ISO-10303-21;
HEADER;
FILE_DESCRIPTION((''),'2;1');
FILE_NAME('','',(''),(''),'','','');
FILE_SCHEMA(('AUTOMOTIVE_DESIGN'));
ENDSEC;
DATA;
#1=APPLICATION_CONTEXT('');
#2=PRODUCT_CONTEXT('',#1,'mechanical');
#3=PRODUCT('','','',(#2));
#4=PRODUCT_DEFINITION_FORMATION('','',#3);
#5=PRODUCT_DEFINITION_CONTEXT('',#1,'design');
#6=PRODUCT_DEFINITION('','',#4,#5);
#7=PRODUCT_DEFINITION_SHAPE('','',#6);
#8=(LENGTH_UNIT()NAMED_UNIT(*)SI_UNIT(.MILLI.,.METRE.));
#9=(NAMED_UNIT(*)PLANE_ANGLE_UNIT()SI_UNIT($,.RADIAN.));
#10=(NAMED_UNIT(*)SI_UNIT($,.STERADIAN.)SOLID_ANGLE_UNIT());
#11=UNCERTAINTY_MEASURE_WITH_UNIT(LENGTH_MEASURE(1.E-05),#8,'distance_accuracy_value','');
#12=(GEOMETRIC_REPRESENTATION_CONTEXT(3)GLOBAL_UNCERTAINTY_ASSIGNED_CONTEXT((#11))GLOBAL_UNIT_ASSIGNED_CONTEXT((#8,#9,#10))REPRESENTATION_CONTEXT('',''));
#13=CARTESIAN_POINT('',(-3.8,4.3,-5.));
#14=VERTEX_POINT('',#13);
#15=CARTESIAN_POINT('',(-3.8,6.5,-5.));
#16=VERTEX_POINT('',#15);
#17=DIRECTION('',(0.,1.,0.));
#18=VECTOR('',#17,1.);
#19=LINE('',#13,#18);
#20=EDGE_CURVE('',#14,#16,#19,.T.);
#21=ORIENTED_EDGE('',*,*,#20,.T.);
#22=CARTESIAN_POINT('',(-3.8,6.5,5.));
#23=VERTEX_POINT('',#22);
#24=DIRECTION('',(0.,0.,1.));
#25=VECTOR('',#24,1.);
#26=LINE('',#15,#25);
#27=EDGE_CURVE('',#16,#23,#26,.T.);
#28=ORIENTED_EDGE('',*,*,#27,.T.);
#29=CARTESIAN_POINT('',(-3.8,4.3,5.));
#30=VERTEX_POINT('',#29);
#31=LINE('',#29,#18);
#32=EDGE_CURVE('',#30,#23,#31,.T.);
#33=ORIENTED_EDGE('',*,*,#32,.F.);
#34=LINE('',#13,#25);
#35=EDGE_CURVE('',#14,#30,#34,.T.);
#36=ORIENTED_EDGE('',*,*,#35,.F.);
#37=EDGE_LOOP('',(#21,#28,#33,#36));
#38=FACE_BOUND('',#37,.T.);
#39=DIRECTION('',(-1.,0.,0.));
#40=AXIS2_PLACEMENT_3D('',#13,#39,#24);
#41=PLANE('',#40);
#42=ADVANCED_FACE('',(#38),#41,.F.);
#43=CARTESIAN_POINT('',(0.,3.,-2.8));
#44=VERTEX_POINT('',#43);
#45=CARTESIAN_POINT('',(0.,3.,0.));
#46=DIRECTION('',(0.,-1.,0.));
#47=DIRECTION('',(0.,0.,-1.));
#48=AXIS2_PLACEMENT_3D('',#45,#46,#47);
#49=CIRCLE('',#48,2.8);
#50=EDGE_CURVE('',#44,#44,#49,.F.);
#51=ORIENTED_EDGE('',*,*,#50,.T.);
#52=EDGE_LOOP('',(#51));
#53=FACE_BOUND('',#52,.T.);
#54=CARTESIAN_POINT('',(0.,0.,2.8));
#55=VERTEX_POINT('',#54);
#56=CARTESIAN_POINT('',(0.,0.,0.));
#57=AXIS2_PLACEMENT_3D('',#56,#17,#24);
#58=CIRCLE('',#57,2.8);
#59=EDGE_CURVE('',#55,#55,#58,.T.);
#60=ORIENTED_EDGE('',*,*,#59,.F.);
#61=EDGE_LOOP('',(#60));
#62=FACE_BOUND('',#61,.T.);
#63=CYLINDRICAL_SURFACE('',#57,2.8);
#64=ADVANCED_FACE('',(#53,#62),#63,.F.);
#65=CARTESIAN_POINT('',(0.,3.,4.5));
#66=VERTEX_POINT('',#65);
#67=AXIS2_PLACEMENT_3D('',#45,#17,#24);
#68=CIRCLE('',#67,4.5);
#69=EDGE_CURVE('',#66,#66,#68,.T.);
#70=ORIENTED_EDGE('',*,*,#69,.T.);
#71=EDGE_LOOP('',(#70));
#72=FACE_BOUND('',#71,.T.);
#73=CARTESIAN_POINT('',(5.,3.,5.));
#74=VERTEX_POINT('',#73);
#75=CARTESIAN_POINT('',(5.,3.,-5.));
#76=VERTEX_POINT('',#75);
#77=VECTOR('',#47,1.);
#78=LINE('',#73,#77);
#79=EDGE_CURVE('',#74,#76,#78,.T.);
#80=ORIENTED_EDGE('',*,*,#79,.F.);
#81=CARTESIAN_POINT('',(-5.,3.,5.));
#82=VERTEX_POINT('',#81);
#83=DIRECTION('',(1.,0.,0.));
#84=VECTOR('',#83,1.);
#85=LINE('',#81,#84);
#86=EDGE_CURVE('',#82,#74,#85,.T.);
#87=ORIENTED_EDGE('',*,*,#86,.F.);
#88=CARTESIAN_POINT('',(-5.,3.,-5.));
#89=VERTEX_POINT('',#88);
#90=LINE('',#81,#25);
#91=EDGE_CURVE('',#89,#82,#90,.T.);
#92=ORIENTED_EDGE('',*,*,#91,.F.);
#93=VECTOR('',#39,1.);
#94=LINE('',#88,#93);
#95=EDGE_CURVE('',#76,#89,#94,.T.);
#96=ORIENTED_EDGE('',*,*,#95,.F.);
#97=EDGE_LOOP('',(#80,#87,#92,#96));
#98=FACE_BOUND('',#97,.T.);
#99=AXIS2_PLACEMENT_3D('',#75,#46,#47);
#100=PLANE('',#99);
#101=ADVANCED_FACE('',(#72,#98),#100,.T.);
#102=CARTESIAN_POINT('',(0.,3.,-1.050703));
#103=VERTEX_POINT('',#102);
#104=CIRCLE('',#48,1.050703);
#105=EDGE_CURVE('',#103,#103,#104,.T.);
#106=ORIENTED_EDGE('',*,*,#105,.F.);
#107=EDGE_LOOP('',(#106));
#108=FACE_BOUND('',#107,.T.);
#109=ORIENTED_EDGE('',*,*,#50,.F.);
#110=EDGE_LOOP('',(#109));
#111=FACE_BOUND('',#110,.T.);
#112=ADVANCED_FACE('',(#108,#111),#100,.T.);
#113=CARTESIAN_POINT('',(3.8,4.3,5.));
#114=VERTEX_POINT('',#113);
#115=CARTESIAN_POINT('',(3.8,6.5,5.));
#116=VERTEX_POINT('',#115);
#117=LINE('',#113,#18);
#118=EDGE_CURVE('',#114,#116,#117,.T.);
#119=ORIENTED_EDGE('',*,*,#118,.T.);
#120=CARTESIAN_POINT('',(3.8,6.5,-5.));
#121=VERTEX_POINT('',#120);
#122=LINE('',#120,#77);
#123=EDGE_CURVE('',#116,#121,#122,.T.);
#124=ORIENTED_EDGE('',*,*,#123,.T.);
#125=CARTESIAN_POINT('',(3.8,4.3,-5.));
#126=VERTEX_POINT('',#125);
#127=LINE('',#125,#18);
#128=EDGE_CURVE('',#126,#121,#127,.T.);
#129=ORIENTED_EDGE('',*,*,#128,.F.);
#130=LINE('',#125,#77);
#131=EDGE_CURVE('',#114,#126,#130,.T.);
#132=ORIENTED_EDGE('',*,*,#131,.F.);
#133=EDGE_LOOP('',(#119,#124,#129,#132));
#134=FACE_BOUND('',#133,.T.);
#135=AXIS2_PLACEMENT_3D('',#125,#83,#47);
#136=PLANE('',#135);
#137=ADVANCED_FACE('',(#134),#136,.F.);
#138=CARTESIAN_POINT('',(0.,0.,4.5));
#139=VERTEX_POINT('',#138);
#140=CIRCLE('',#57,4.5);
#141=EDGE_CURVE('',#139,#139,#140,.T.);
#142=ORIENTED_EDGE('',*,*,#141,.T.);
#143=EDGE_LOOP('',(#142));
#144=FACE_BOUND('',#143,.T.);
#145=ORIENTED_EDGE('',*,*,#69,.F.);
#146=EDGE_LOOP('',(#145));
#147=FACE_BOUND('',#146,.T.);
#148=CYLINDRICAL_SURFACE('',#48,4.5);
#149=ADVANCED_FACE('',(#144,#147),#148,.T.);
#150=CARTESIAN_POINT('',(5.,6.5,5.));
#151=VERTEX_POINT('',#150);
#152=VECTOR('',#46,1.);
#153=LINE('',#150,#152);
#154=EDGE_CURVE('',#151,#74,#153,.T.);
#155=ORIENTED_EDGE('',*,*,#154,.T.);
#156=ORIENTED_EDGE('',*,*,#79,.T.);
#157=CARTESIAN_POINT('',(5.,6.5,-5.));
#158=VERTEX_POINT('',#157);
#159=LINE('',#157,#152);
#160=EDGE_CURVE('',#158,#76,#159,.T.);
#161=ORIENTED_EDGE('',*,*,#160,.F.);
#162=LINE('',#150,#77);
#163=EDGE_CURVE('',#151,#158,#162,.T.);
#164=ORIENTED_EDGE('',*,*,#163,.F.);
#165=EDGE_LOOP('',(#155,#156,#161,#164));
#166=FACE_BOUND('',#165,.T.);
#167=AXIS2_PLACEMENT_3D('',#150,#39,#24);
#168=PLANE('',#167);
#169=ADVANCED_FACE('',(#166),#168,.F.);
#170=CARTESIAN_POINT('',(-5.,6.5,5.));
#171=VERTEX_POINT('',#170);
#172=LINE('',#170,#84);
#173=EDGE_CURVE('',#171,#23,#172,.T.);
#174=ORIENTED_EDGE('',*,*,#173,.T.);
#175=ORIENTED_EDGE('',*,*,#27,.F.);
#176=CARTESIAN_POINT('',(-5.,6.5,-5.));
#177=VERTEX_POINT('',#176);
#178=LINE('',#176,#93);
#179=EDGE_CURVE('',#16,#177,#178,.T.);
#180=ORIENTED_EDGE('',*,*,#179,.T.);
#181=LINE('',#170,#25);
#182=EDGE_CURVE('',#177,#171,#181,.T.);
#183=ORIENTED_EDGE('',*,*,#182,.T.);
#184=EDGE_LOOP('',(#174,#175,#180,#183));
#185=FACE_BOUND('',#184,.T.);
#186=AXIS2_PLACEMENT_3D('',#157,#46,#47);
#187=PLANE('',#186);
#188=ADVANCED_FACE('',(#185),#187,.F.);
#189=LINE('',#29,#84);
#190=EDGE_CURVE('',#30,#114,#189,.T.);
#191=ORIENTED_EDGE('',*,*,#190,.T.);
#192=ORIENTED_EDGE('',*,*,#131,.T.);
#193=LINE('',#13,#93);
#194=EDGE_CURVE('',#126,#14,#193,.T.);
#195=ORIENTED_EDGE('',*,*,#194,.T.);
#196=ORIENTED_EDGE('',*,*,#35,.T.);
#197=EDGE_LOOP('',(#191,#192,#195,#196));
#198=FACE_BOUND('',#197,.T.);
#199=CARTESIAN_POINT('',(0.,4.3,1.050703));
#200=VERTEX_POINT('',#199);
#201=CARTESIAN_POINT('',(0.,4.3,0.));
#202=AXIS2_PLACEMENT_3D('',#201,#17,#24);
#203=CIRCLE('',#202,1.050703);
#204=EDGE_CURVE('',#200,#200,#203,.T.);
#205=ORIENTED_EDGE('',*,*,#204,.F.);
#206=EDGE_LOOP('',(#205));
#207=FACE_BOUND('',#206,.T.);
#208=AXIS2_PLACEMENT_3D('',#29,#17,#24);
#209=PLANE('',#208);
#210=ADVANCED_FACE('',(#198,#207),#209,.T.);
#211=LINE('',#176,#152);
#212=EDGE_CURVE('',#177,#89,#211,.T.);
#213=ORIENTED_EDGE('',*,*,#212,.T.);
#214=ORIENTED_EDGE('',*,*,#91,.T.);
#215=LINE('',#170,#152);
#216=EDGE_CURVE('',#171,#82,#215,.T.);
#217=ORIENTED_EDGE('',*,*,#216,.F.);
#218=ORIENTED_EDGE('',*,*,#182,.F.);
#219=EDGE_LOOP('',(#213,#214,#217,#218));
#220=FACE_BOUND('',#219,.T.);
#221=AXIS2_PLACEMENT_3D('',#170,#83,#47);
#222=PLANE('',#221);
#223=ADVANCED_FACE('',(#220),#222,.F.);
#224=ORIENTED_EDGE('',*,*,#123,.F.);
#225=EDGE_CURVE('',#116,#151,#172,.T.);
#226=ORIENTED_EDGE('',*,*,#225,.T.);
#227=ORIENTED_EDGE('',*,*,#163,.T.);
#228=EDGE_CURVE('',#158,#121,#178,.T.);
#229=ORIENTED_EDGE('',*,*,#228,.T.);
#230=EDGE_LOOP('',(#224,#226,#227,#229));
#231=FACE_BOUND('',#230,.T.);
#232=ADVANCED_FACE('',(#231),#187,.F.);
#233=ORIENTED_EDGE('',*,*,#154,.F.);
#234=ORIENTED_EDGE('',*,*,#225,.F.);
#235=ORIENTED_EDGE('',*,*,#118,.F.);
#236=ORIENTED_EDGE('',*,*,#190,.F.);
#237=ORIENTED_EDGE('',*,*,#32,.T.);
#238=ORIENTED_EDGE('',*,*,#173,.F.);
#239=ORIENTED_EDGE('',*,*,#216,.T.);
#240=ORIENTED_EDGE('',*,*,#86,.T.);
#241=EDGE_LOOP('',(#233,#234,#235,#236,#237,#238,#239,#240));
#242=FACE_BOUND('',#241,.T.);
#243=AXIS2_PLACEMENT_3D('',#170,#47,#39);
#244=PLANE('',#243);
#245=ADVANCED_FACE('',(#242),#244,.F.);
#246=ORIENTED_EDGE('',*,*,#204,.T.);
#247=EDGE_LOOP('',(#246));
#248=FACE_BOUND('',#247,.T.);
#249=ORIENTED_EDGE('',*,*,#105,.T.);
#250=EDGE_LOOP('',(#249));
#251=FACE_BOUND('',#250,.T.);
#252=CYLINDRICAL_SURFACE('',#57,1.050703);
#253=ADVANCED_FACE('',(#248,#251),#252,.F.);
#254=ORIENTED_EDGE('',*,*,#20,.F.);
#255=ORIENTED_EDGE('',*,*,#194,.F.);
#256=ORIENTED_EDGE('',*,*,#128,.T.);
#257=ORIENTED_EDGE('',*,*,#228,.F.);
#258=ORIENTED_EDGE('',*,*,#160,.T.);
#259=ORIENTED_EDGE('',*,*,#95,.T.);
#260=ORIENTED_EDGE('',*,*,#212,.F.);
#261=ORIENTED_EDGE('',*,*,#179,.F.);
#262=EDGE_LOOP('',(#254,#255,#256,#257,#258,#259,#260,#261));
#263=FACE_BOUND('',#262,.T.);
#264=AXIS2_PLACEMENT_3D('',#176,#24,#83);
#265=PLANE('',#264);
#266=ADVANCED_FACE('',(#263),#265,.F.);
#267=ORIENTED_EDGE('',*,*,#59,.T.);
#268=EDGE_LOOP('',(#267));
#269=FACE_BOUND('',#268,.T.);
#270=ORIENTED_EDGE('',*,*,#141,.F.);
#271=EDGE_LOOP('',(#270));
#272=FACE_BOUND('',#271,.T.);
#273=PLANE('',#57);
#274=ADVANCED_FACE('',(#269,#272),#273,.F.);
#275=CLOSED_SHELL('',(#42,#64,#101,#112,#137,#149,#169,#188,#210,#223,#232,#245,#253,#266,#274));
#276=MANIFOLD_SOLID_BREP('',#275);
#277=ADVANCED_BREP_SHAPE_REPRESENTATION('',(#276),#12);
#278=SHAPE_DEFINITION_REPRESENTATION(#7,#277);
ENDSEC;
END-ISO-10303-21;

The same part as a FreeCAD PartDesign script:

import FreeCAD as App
import Part
import Sketcher

V = App.Vector


def add_polygon(sketch, points):
    """Adds a closed chain of lines whose ends are joined by coincident constraints."""
    first, n = sketch.GeometryCount, len(points)
    for a, b in zip(points, points[1:] + points[:1]):
        sketch.addGeometry(Part.LineSegment(App.Vector(*a, 0), App.Vector(*b, 0)), False)
    for i in range(n):
        sketch.addConstraint(Sketcher.Constraint("Coincident", first + i, 2, first + (i + 1) % n, 1))

doc = App.newDocument("Part")
body = doc.addObject("PartDesign::Body", "Body")

# Sketch on XZ plane
sketch1 = doc.addObject("Sketcher::SketchObject", "Sketch")
body.addObject(sketch1)
sketch1.AttachmentSupport = (doc.XZ_Plane, [""])
sketch1.MapMode = "FlatFace"
sketch1.addGeometry(Part.Circle(V(0, 0, 0), V(0, 0, 1), 4.5), False)
sketch1.addConstraint([
    Sketcher.Constraint("Coincident", 0, 3, -1, 1),
    Sketcher.Constraint("Diameter", 0, 9.0),
])
pad1 = doc.addObject("PartDesign::Pad", "Pad")
body.addObject(pad1)
pad1.Profile = sketch1
pad1.Length = 3
pad1.Reversed = True

# Sketch on XZ plane
sketch2 = doc.addObject("Sketcher::SketchObject", "Sketch001")
body.addObject(sketch2)
sketch2.AttachmentSupport = (doc.XZ_Plane, [""])
sketch2.MapMode = "FlatFace"
sketch2.AttachmentOffset = App.Placement(V(0, 0, -3), App.Rotation())
sketch2.addGeometry(Part.Circle(V(0, 0, 0), V(0, 0, 1), 2.8), False)
sketch2.addConstraint([
    Sketcher.Constraint("Coincident", 0, 3, -1, 1),
    Sketcher.Constraint("Diameter", 0, 5.6),
])
pocket1 = doc.addObject("PartDesign::Pocket", "Pocket")
body.addObject(pocket1)
pocket1.Profile = sketch2
pocket1.Type = "ThroughAll"
pocket1.Reversed = True

# Sketch on XZ plane
sketch3 = doc.addObject("Sketcher::SketchObject", "Sketch002")
body.addObject(sketch3)
sketch3.AttachmentSupport = (doc.XZ_Plane, [""])
sketch3.MapMode = "FlatFace"
sketch3.AttachmentOffset = App.Placement(V(0, 0, -3), App.Rotation())
add_polygon(sketch3, [(-5, -5), (-5, 5), (5, 5), (5, -5)])  # lines 0-3
sketch3.addConstraint([
    Sketcher.Constraint("Vertical", 0),
    Sketcher.Constraint("Horizontal", 1),
    Sketcher.Constraint("Vertical", 2),
    Sketcher.Constraint("Horizontal", 3),
    Sketcher.Constraint("Symmetric", 0, 2, 2, 2, -1, 1),
    Sketcher.Constraint("Equal", 3, 0),
    Sketcher.Constraint("DistanceX", 1, 1, 1, 2, 10.0),
])
pad2 = doc.addObject("PartDesign::Pad", "Pad001")
body.addObject(pad2)
pad2.Profile = sketch3
pad2.Length = 3.5
pad2.Reversed = True

# Sketch on XZ plane
sketch4 = doc.addObject("Sketcher::SketchObject", "Sketch003")
body.addObject(sketch4)
sketch4.AttachmentSupport = (doc.XZ_Plane, [""])
sketch4.MapMode = "FlatFace"
sketch4.AttachmentOffset = App.Placement(V(0, 0, -6.5), App.Rotation())
add_polygon(sketch4, [(-4, -5), (-4, 5), (4, 5), (4, -5)])  # lines 0-3
sketch4.addConstraint([
    Sketcher.Constraint("Vertical", 0),
    Sketcher.Constraint("Horizontal", 1),
    Sketcher.Constraint("Vertical", 2),
    Sketcher.Constraint("Horizontal", 3),
    Sketcher.Constraint("Symmetric", 0, 2, 2, 2, -1, 1),
    Sketcher.Constraint("DistanceY", 0, 1, 0, 2, 10.0),
    Sketcher.Constraint("DistanceX", 1, 1, 1, 2, 7.6),
])
pocket2 = doc.addObject("PartDesign::Pocket", "Pocket001")
body.addObject(pocket2)
pocket2.Profile = sketch4
pocket2.Length = 2.2
pocket2.Reversed = True

# Sketch on XZ plane
sketch5 = doc.addObject("Sketcher::SketchObject", "Sketch004")
body.addObject(sketch5)
sketch5.AttachmentSupport = (doc.XZ_Plane, [""])
sketch5.MapMode = "FlatFace"
sketch5.AttachmentOffset = App.Placement(V(0, 0, -4.3), App.Rotation())
sketch5.addGeometry(Part.Circle(V(0, 0, 0), V(0, 0, 1), 1.1), False)
sketch5.addConstraint([
    Sketcher.Constraint("Coincident", 0, 3, -1, 1),
    Sketcher.Constraint("Diameter", 0, 2.101405),
])
pocket3 = doc.addObject("PartDesign::Pocket", "Pocket002")
body.addObject(pocket3)
pocket3.Profile = sketch5
pocket3.Type = "ThroughAll"
pocket3.Reversed = True

doc.recompute()
